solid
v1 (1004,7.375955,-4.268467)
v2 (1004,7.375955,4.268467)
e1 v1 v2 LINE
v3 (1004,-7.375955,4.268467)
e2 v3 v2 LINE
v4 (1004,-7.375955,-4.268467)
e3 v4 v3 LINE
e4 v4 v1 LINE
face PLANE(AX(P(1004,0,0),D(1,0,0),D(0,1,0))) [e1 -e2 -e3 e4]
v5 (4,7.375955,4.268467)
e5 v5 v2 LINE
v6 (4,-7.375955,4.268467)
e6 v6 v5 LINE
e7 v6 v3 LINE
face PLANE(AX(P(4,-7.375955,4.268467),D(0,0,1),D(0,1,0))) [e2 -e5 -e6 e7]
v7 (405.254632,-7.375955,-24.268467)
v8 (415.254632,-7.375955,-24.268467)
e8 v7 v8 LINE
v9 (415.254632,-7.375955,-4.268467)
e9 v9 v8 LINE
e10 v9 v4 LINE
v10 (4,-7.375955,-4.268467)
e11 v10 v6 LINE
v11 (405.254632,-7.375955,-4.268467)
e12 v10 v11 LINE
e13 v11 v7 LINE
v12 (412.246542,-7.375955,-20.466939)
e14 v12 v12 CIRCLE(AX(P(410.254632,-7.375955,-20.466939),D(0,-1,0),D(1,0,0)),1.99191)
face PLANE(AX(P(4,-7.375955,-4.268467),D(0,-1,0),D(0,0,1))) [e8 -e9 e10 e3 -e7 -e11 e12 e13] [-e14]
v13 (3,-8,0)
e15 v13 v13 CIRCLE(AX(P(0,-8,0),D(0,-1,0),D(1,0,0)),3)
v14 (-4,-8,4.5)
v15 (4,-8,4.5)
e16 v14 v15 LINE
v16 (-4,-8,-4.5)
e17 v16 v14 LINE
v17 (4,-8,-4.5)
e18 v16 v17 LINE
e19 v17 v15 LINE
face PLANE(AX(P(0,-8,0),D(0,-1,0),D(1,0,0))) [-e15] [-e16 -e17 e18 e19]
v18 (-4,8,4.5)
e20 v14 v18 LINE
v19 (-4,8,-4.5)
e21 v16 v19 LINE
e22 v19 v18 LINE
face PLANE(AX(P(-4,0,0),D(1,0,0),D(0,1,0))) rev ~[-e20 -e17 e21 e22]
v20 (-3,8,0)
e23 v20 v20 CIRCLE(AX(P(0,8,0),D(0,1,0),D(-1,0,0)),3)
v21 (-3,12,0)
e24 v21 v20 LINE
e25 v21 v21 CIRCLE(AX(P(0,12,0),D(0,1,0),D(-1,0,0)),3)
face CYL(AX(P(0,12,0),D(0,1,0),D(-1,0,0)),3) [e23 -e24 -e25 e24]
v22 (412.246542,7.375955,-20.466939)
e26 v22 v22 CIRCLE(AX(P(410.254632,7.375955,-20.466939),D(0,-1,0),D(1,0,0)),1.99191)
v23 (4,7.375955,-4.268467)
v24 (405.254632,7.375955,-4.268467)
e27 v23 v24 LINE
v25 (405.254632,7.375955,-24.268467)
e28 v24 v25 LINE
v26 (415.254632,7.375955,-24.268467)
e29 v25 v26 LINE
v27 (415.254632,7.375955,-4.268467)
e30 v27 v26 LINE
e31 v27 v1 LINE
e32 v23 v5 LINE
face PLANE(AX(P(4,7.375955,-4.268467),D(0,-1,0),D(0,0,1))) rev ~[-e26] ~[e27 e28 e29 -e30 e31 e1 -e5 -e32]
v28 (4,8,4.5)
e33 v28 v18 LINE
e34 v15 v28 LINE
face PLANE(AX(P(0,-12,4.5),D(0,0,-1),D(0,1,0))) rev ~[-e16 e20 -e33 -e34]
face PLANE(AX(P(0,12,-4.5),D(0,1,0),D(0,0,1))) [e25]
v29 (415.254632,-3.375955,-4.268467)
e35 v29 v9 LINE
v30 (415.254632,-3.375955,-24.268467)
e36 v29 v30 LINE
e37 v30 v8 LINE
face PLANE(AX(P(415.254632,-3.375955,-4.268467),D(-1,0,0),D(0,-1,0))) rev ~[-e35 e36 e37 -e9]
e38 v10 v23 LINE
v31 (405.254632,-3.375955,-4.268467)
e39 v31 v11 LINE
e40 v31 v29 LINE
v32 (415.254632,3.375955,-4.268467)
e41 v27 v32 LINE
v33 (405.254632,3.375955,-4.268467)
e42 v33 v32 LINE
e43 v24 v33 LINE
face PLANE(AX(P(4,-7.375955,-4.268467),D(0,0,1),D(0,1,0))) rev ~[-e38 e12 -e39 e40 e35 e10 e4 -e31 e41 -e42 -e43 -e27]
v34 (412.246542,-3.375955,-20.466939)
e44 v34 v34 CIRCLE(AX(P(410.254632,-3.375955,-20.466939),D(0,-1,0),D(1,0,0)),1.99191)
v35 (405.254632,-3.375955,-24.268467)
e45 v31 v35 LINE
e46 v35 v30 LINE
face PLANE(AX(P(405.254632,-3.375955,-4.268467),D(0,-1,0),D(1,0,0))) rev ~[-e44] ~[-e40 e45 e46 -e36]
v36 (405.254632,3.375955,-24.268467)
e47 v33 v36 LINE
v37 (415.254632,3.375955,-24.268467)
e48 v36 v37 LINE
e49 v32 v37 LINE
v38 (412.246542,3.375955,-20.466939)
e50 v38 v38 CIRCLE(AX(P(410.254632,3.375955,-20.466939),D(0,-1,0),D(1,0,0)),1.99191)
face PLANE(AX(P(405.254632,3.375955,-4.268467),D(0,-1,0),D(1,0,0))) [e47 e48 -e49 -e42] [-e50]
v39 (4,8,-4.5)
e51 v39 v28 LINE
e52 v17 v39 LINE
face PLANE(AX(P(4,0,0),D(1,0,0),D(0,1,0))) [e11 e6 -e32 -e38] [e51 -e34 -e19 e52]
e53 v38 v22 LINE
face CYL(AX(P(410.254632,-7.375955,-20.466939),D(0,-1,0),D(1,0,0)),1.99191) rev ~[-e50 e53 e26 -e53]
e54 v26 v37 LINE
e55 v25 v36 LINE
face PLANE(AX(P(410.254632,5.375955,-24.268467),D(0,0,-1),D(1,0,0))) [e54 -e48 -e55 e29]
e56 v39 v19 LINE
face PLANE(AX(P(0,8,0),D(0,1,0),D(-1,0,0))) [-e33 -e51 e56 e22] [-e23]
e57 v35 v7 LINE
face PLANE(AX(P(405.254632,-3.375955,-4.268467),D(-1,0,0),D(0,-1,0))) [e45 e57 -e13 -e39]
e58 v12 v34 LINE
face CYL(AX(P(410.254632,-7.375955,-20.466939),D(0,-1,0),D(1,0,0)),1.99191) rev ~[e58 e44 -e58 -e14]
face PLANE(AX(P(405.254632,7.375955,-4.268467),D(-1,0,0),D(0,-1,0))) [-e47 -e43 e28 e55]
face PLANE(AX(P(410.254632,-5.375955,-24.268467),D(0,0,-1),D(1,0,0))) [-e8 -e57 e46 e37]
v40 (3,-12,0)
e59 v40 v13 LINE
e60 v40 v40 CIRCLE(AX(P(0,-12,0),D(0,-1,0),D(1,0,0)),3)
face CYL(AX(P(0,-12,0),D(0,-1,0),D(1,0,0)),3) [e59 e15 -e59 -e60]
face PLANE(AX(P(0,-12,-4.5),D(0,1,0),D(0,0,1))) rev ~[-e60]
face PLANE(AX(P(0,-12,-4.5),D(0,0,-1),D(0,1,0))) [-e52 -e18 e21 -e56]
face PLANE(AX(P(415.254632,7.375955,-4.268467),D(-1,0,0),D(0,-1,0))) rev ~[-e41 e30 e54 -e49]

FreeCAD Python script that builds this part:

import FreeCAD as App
import Part
import Sketcher
from FreeCAD import Vector
Q = App.Units.Quantity

doc = App.newDocument("Part")
body = doc.addObject("PartDesign::Body", "Body")

# Sketch on YZ plane
sketch1 = doc.addObject("Sketcher::SketchObject", "Sketch")
body.addObject(sketch1)
sketch1.AttachmentSupport = (doc.YZ_Plane, [""])
sketch1.MapMode = "FlatFace"
sketch1.addGeometry([
    Part.LineSegment(Vector(-12, 4, 0), Vector(-12, -4, 0)),
    Part.LineSegment(Vector(-12, -4, 0), Vector(12, -4, 0)),
    Part.LineSegment(Vector(12, -4, 0), Vector(12, 4, 0)),
    Part.LineSegment(Vector(12, 4, 0), Vector(-12, 4, 0)),
], False)
sketch1.addConstraint([
    Sketcher.Constraint("Coincident", 0, 2, 1, 1),
    Sketcher.Constraint("Coincident", 1, 2, 2, 1),
    Sketcher.Constraint("Coincident", 2, 2, 3, 1),
    Sketcher.Constraint("Coincident", 3, 2, 0, 1),
    Sketcher.Constraint("Vertical", 0),
    Sketcher.Constraint("Horizontal", 1),
    Sketcher.Constraint("Vertical", 2),
    Sketcher.Constraint("Horizontal", 3),
    Sketcher.Constraint("Symmetric", 0, 2, 2, 2, -1, 1),
    Sketcher.Constraint("DistanceX", 1, 1, 1, 2, Q("24 mm")),
    Sketcher.Constraint("DistanceY", 0, 2, 0, 1, Q("9 mm")),
])
pad1 = doc.addObject("PartDesign::Pad", "Pad")
body.addObject(pad1)
pad1.Profile = sketch1
pad1.Length = 8
pad1.Midplane = True

# Sketch on XZ plane
sketch2 = doc.addObject("Sketcher::SketchObject", "Sketch001")
body.addObject(sketch2)
sketch2.AttachmentSupport = (doc.XZ_Plane, [""])
sketch2.MapMode = "FlatFace"
sketch2.AttachmentOffset = App.Placement(Vector(0, 0, 12), App.Rotation())
sketch2.addGeometry([
    Part.LineSegment(Vector(-4, 4.5, 0), Vector(-4, -4.5, 0)),  # 0
    Part.LineSegment(Vector(-4, -4.5, 0), Vector(4, -4.5, 0)),  # 1
    Part.LineSegment(Vector(4, -4.5, 0), Vector(4, 4.5, 0)),  # 2
    Part.LineSegment(Vector(4, 4.5, 0), Vector(-4, 4.5, 0)),  # 3
    Part.Circle(Vector(0, 0, 0), Vector(0, 0, 1), 3),  # 4
], False)
sketch2.addConstraint([
    Sketcher.Constraint("Coincident", 0, 2, 1, 1),
    Sketcher.Constraint("Coincident", 1, 2, 2, 1),
    Sketcher.Constraint("Coincident", 2, 2, 3, 1),
    Sketcher.Constraint("Coincident", 3, 2, 0, 1),
    Sketcher.Constraint("Vertical", 0),
    Sketcher.Constraint("Horizontal", 1),
    Sketcher.Constraint("Vertical", 2),
    Sketcher.Constraint("Horizontal", 3),
    Sketcher.Constraint("Coincident", 4, 3, -1, 1),
    Sketcher.Constraint("Symmetric", 0, 2, 2, 2, -1, 1),
    Sketcher.Constraint("Diameter", 4, Q("6 mm")),
    Sketcher.Constraint("DistanceX", 1, 1, 1, 2, Q("8 mm")),
    Sketcher.Constraint("DistanceY", 0, 2, 0, 1, Q("9 mm")),
])
pocket1 = doc.addObject("PartDesign::Pocket", "Pocket")
body.addObject(pocket1)
pocket1.Profile = sketch2
pocket1.Length = 4

# Sketch on XZ plane
sketch3 = doc.addObject("Sketcher::SketchObject", "Sketch002")
body.addObject(sketch3)
sketch3.AttachmentSupport = (doc.XZ_Plane, [""])
sketch3.MapMode = "FlatFace"
sketch3.AttachmentOffset = App.Placement(Vector(0, 0, -12), App.Rotation())
sketch3.addGeometry([
    Part.LineSegment(Vector(4, 4.5, 0), Vector(4, -4.5, 0)),  # 0
    Part.LineSegment(Vector(4, -4.5, 0), Vector(-4, -4.5, 0)),  # 1
    Part.LineSegment(Vector(-4, -4.5, 0), Vector(-4, 4.5, 0)),  # 2
    Part.LineSegment(Vector(-4, 4.5, 0), Vector(4, 4.5, 0)),  # 3
    Part.Circle(Vector(0, 0, 0), Vector(0, 0, 1), 3),  # 4
], False)
sketch3.addConstraint([
    Sketcher.Constraint("Coincident", 0, 2, 1, 1),
    Sketcher.Constraint("Coincident", 1, 2, 2, 1),
    Sketcher.Constraint("Coincident", 2, 2, 3, 1),
    Sketcher.Constraint("Coincident", 3, 2, 0, 1),
    Sketcher.Constraint("Vertical", 0),
    Sketcher.Constraint("Horizontal", 1),
    Sketcher.Constraint("Vertical", 2),
    Sketcher.Constraint("Horizontal", 3),
    Sketcher.Constraint("Coincident", 4, 3, -1, 1),
    Sketcher.Constraint("Symmetric", 0, 2, 2, 2, -1, 1),
    Sketcher.Constraint("Diameter", 4, Q("6 mm")),
    Sketcher.Constraint("DistanceX", 1, 2, 1, 1, Q("8 mm")),
    Sketcher.Constraint("DistanceY", 0, 2, 0, 1, Q("9 mm")),
])
pocket2 = doc.addObject("PartDesign::Pocket", "Pocket001")
body.addObject(pocket2)
pocket2.Profile = sketch3
pocket2.Length = 4
pocket2.Reversed = True

# Sketch on YZ plane
sketch4 = doc.addObject("Sketcher::SketchObject", "Sketch003")
body.addObject(sketch4)
sketch4.AttachmentSupport = (doc.YZ_Plane, [""])
sketch4.MapMode = "FlatFace"
sketch4.AttachmentOffset = App.Placement(Vector(0, 0, 4), App.Rotation())
sketch4.addGeometry([
    Part.LineSegment(Vector(-7, 4, 0), Vector(-7, -4, 0)),
    Part.LineSegment(Vector(-7, -4, 0), Vector(7, -4, 0)),
    Part.LineSegment(Vector(7, -4, 0), Vector(7, 4, 0)),
    Part.LineSegment(Vector(7, 4, 0), Vector(-7, 4, 0)),
], False)
sketch4.addConstraint([
    Sketcher.Constraint("Coincident", 0, 2, 1, 1),
    Sketcher.Constraint("Coincident", 1, 2, 2, 1),
    Sketcher.Constraint("Coincident", 2, 2, 3, 1),
    Sketcher.Constraint("Coincident", 3, 2, 0, 1),
    Sketcher.Constraint("Vertical", 0),
    Sketcher.Constraint("Horizontal", 1),
    Sketcher.Constraint("Vertical", 2),
    Sketcher.Constraint("Horizontal", 3),
    Sketcher.Constraint("Symmetric", 0, 2, 2, 2, -1, 1),
    Sketcher.Constraint("DistanceX", 1, 1, 1, 2, Q("14.75191 mm")),
    Sketcher.Constraint("DistanceY", 0, 2, 0, 1, Q("8.536934 mm")),
])
pad2 = doc.addObject("PartDesign::Pad", "Pad001")
body.addObject(pad2)
pad2.Profile = sketch4
pad2.Length = 1000

# Sketch on XY plane
sketch5 = doc.addObject("Sketcher::SketchObject", "Sketch004")
body.addObject(sketch5)
sketch5.AttachmentSupport = (doc.XY_Plane, [""])
sketch5.MapMode = "FlatFace"
sketch5.AttachmentOffset = App.Placement(Vector(0, 0, -4.268467), App.Rotation())
sketch5.addGeometry([
    Part.LineSegment(Vector(405.3, -7.4, 0), Vector(405.3, -3.4, 0)),
    Part.LineSegment(Vector(405.3, -3.4, 0), Vector(415.3, -3.4, 0)),
    Part.LineSegment(Vector(415.3, -3.4, 0), Vector(415.3, -7.4, 0)),
    Part.LineSegment(Vector(415.3, -7.4, 0), Vector(405.3, -7.4, 0)),
], False)
sketch5.addConstraint([
    Sketcher.Constraint("Coincident", 0, 2, 1, 1),
    Sketcher.Constraint("Coincident", 1, 2, 2, 1),
    Sketcher.Constraint("Coincident", 2, 2, 3, 1),
    Sketcher.Constraint("Coincident", 3, 2, 0, 1),
    Sketcher.Constraint("Vertical", 0),
    Sketcher.Constraint("Horizontal", 1),
    Sketcher.Constraint("Vertical", 2),
    Sketcher.Constraint("Horizontal", 3),
    Sketcher.Constraint("DistanceX", 1, 1, 1, 2, Q("10 mm")),
    Sketcher.Constraint("DistanceY", 0, 1, 0, 2, Q("4 mm")),
    Sketcher.Constraint("DistanceX", -1, 1, 0, 2, Q("405.254632 mm")),
    Sketcher.Constraint("DistanceY", 0, 2, -1, 1, Q("3.375955 mm")),
])
pad3 = doc.addObject("PartDesign::Pad", "Pad002")
body.addObject(pad3)
pad3.Profile = sketch5
pad3.Length = 20
pad3.Reversed = True

# Sketch on XY plane
sketch6 = doc.addObject("Sketcher::SketchObject", "Sketch005")
body.addObject(sketch6)
sketch6.AttachmentSupport = (doc.XY_Plane, [""])
sketch6.MapMode = "FlatFace"
sketch6.AttachmentOffset = App.Placement(Vector(0, 0, -4.268467), App.Rotation())
sketch6.addGeometry([
    Part.LineSegment(Vector(405.3, 3.4, 0), Vector(405.3, 7.4, 0)),
    Part.LineSegment(Vector(405.3, 7.4, 0), Vector(415.3, 7.4, 0)),
    Part.LineSegment(Vector(415.3, 7.4, 0), Vector(415.3, 3.4, 0)),
    Part.LineSegment(Vector(415.3, 3.4, 0), Vector(405.3, 3.4, 0)),
], False)
sketch6.addConstraint([
    Sketcher.Constraint("Coincident", 0, 2, 1, 1),
    Sketcher.Constraint("Coincident", 1, 2, 2, 1),
    Sketcher.Constraint("Coincident", 2, 2, 3, 1),
    Sketcher.Constraint("Coincident", 3, 2, 0, 1),
    Sketcher.Constraint("Vertical", 0),
    Sketcher.Constraint("Horizontal", 1),
    Sketcher.Constraint("Vertical", 2),
    Sketcher.Constraint("Horizontal", 3),
    Sketcher.Constraint("DistanceX", 1, 1, 1, 2, Q("10 mm")),
    Sketcher.Constraint("DistanceY", 0, 1, 0, 2, Q("4 mm")),
    Sketcher.Constraint("DistanceX", -1, 1, 0, 2, Q("405.254632 mm")),
    Sketcher.Constraint("DistanceY", -1, 1, 0, 2, Q("7.375955 mm")),
])
pad4 = doc.addObject("PartDesign::Pad", "Pad003")
body.addObject(pad4)
pad4.Profile = sketch6
pad4.Length = 20
pad4.Reversed = True

# Sketch on XZ plane
sketch7 = doc.addObject("Sketcher::SketchObject", "Sketch006")
body.addObject(sketch7)
sketch7.AttachmentSupport = (doc.XZ_Plane, [""])
sketch7.MapMode = "FlatFace"
sketch7.AttachmentOffset = App.Placement(Vector(0, 0, 7.375955), App.Rotation())
sketch7.addGeometry(Part.Circle(Vector(410.3, -20.5, 0), Vector(0, 0, 1), 2), False)
sketch7.addConstraint([
    Sketcher.Constraint("Diameter", 0, Q("3.983819 mm")),
    Sketcher.Constraint("DistanceY", 0, 3, -1, 1, Q("20.466939 mm")),
    Sketcher.Constraint("DistanceX", -1, 1, 0, 3, Q("410.254632 mm")),
])
pocket3 = doc.addObject("PartDesign::Pocket", "Pocket002")
body.addObject(pocket3)
pocket3.Profile = sketch7
pocket3.Length = 50

doc.recompute()
